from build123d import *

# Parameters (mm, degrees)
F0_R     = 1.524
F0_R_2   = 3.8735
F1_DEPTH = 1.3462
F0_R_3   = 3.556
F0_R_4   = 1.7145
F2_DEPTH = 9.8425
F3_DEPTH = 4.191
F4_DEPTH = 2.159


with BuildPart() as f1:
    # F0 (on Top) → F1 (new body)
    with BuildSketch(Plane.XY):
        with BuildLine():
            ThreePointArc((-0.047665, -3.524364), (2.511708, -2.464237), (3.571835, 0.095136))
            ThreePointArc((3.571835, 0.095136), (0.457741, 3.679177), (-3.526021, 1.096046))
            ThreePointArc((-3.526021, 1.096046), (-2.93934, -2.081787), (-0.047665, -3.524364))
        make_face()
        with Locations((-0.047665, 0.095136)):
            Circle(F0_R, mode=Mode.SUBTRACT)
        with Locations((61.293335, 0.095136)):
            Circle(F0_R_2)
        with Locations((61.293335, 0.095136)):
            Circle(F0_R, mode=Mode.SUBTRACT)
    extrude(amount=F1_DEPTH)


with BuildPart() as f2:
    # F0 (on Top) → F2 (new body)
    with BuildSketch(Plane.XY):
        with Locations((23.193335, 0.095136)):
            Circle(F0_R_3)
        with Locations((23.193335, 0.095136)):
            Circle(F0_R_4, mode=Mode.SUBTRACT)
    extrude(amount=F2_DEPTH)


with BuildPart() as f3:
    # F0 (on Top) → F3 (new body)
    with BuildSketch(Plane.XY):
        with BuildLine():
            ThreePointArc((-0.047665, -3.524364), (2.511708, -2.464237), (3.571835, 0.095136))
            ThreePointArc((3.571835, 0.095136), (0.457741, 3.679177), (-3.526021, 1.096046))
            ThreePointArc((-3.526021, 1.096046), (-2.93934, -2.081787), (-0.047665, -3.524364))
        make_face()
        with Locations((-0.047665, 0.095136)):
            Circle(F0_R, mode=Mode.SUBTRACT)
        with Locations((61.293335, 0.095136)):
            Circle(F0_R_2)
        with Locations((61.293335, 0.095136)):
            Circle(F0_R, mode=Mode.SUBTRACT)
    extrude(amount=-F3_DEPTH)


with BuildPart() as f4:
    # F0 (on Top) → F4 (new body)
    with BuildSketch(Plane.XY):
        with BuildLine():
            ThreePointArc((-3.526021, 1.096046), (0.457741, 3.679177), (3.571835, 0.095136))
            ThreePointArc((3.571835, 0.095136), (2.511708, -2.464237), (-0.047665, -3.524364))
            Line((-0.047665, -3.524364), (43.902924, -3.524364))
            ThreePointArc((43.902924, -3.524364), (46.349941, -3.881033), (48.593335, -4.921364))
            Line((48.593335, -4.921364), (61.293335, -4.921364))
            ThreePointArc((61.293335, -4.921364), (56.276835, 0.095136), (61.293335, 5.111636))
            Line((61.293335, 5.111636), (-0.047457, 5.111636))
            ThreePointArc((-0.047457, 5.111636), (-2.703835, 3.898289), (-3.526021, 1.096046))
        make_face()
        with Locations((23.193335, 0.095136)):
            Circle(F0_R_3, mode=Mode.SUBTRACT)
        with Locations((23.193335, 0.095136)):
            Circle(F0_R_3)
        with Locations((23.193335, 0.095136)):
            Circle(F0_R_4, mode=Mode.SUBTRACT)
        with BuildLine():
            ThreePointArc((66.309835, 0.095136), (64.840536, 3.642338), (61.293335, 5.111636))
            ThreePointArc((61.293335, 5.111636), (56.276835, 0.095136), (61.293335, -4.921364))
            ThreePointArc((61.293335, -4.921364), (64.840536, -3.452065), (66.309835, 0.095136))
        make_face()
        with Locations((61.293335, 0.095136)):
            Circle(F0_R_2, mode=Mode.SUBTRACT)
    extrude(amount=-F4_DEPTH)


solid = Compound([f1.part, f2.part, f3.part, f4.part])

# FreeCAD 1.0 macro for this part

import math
import FreeCAD as App
import Part
import Sketcher

V = App.Vector
Q = App.Units.Quantity

doc = App.newDocument("Part")
body = doc.addObject("PartDesign::Body", "Body")
body.AllowCompound = True

sketch1 = doc.addObject("Sketcher::SketchObject", "Sketch")
body.addObject(sketch1)
sketch1.AttachmentSupport = (doc.XY_Plane, [""])
sketch1.MapMode = "FlatFace"
sketch1.addGeometry(Part.ArcOfCircle(Part.Circle(V(0, 0.1, 0), V(0, 0, 1), 3.6), math.radians(-90), math.radians(0)), False)
sketch1.addGeometry(Part.ArcOfCircle(Part.Circle(V(0, 0.1, 0), V(0, 0, 1), 3.6), math.radians(0), math.radians(164)), False)
sketch1.addGeometry(Part.ArcOfCircle(Part.Circle(V(0, 0.1, 0), V(0, 0, 1), 3.6), math.radians(164), math.radians(270)), False)
sketch1.addGeometry(Part.Circle(V(0, 0.1, 0), V(0, 0, 1), 1.5), False)
sketch1.addGeometry(Part.Circle(V(61.3, 0.1, 0), V(0, 0, 1), 3.9), False)
sketch1.addGeometry(Part.Circle(V(61.3, 0.1, 0), V(0, 0, 1), 1.5), False)
sketch1.addConstraint(Sketcher.Constraint("Tangent", 0, 2, 1, 1))
sketch1.addConstraint(Sketcher.Constraint("Tangent", 1, 2, 2, 1))
sketch1.addConstraint(Sketcher.Constraint("Tangent", 2, 2, 0, 1))
sketch1.addConstraint(Sketcher.Constraint("Coincident", 3, 3, 0, 3))
sketch1.addConstraint(Sketcher.Constraint("Coincident", 5, 3, 4, 3))
sketch1.addConstraint(Sketcher.Constraint("Equal", 3, 5))
sketch1.addConstraint(Sketcher.Constraint("Horizontal", 3, 3, 4, 3))
sketch1.addConstraint(Sketcher.Constraint("Horizontal", 5, 3, 0, 2))
sketch1.addConstraint(Sketcher.Constraint("Vertical", 3, 3, 2, 2))
sketch1.addConstraint(Sketcher.Constraint("Diameter", 3, Q("0.12 in")))
sketch1.addConstraint(Sketcher.Constraint("Diameter", 4, Q("0.305 in")))
sketch1.addConstraint(Sketcher.Constraint("Radius", 0, Q("0.1425 in")))
sketch1.addConstraint(Sketcher.Constraint("DistanceX", 2, 3, 4, 3, Q("2.415 in")))
sketch1.addConstraint(Sketcher.Constraint("DistanceX", 1, 2, -1, 1, Q("3.526021 mm")))
sketch1.addConstraint(Sketcher.Constraint("DistanceY", 1, 3, 1, 2, Q("1.000909 mm")))
sketch1.addConstraint(Sketcher.Constraint("DistanceY", -1, 1, 0, 3, Q("0.095136 mm")))
pad1 = doc.addObject("PartDesign::Pad", "Pad")
body.addObject(pad1)
pad1.Profile = sketch1
pad1.Length = Q("0.053 in")
body2 = doc.addObject("PartDesign::Body", "Body001")

sketch2 = doc.addObject("Sketcher::SketchObject", "Sketch001")
body2.addObject(sketch2)
sketch2.AttachmentSupport = (doc.getObject("XY_Plane001"), [""])
sketch2.MapMode = "FlatFace"
sketch2.addGeometry(Part.Circle(V(23.2, 0.1, 0), V(0, 0, 1), 3.6), False)
sketch2.addGeometry(Part.Circle(V(23.2, 0.1, 0), V(0, 0, 1), 1.7), False)
sketch2.addConstraint(Sketcher.Constraint("Coincident", 1, 3, 0, 3))
sketch2.addConstraint(Sketcher.Constraint("Diameter", 0, Q("0.28 in")))
sketch2.addConstraint(Sketcher.Constraint("Diameter", 1, Q("0.135 in")))
sketch2.addConstraint(Sketcher.Constraint("DistanceX", -1, 1, 0, 3, Q("23.193335 mm")))
sketch2.addConstraint(Sketcher.Constraint("DistanceY", -1, 1, 0, 3, Q("0.095136 mm")))
pad2 = doc.addObject("PartDesign::Pad", "Pad001")
body2.addObject(pad2)
pad2.Profile = sketch2
pad2.Length = Q("0.3875 in")
body3 = doc.addObject("PartDesign::Body", "Body002")
body3.AllowCompound = True

sketch3 = doc.addObject("Sketcher::SketchObject", "Sketch002")
body3.addObject(sketch3)
sketch3.AttachmentSupport = (doc.getObject("XY_Plane002"), [""])
sketch3.MapMode = "FlatFace"
sketch3.addGeometry(Part.ArcOfCircle(Part.Circle(V(0, 0.1, 0), V(0, 0, 1), 3.6), math.radians(-90), math.radians(0)), False)
sketch3.addGeometry(Part.ArcOfCircle(Part.Circle(V(0, 0.1, 0), V(0, 0, 1), 3.6), math.radians(0), math.radians(164)), False)
sketch3.addGeometry(Part.ArcOfCircle(Part.Circle(V(0, 0.1, 0), V(0, 0, 1), 3.6), math.radians(164), math.radians(270)), False)
sketch3.addGeometry(Part.Circle(V(0, 0.1, 0), V(0, 0, 1), 1.5), False)
sketch3.addGeometry(Part.Circle(V(61.3, 0.1, 0), V(0, 0, 1), 3.9), False)
sketch3.addGeometry(Part.Circle(V(61.3, 0.1, 0), V(0, 0, 1), 1.5), False)
sketch3.addConstraint(Sketcher.Constraint("Tangent", 0, 2, 1, 1))
sketch3.addConstraint(Sketcher.Constraint("Tangent", 1, 2, 2, 1))
sketch3.addConstraint(Sketcher.Constraint("Tangent", 2, 2, 0, 1))
sketch3.addConstraint(Sketcher.Constraint("Coincident", 3, 3, 0, 3))
sketch3.addConstraint(Sketcher.Constraint("Coincident", 5, 3, 4, 3))
sketch3.addConstraint(Sketcher.Constraint("Equal", 3, 5))
sketch3.addConstraint(Sketcher.Constraint("Horizontal", 3, 3, 4, 3))
sketch3.addConstraint(Sketcher.Constraint("Horizontal", 5, 3, 0, 2))
sketch3.addConstraint(Sketcher.Constraint("Vertical", 3, 3, 2, 2))
sketch3.addConstraint(Sketcher.Constraint("Diameter", 3, Q("0.12 in")))
sketch3.addConstraint(Sketcher.Constraint("Diameter", 4, Q("0.305 in")))
sketch3.addConstraint(Sketcher.Constraint("Radius", 0, Q("0.1425 in")))
sketch3.addConstraint(Sketcher.Constraint("DistanceX", 2, 3, 4, 3, Q("2.415 in")))
sketch3.addConstraint(Sketcher.Constraint("DistanceX", 1, 2, -1, 1, Q("3.526021 mm")))
sketch3.addConstraint(Sketcher.Constraint("DistanceY", 1, 3, 1, 2, Q("1.000909 mm")))
sketch3.addConstraint(Sketcher.Constraint("DistanceY", -1, 1, 0, 3, Q("0.095136 mm")))
pad3 = doc.addObject("PartDesign::Pad", "Pad002")
body3.addObject(pad3)
pad3.Profile = sketch3
pad3.Length = Q("0.165 in")
pad3.Reversed = True
body4 = doc.addObject("PartDesign::Body", "Body003")

sketch4 = doc.addObject("Sketcher::SketchObject", "Sketch003")
body4.addObject(sketch4)
sketch4.AttachmentSupport = (doc.getObject("XY_Plane003"), [""])
sketch4.MapMode = "FlatFace"
sketch4.addGeometry(Part.ArcOfCircle(Part.Circle(V(0, 0.1, 0), V(0, 0, 1), 3.6), math.radians(0), math.radians(164)), False)
sketch4.addGeometry(Part.ArcOfCircle(Part.Circle(V(0, 0.1, 0), V(0, 0, 1), 3.6), math.radians(-90), math.radians(0)), False)
sketch4.addGeometry(Part.LineSegment(V(0, -3.5, 0), V(43.9, -3.5, 0)), False)
sketch4.addGeometry(Part.ArcOfCircle(Part.Circle(V(43.9, -12.1, 0), V(0, 0, 1), 8.6), math.radians(57), math.radians(90)), False)
sketch4.addGeometry(Part.LineSegment(V(48.6, -4.9, 0), V(61.3, -4.9, 0)), False)
sketch4.addGeometry(Part.ArcOfCircle(Part.Circle(V(61.3, 0.1, 0), V(0, 0, 1), 5), math.radians(-90), math.radians(0)), False)
sketch4.addGeometry(Part.ArcOfCircle(Part.Circle(V(61.3, 0.1, 0), V(0, 0, 1), 5), math.radians(0), math.radians(90)), False)
sketch4.addGeometry(Part.LineSegment(V(61.3, 5.1, 0), V(0, 5.1, 0)), False)
sketch4.addGeometry(Part.ArcOfCircle(Part.Circle(V(0, 1.6, 0), V(0, 0, 1), 3.5), math.radians(90), math.radians(188)), False)
sketch4.addGeometry(Part.Circle(V(23.2, 0.1, 0), V(0, 0, 1), 1.7), False)
sketch4.addGeometry(Part.Circle(V(61.3, 0.1, 0), V(0, 0, 1), 3.9), False)
sketch4.addConstraint(Sketcher.Constraint("Tangent", 0, 1, 1, 2))
sketch4.addConstraint(Sketcher.Constraint("Tangent", 1, 1, 2, 1))
sketch4.addConstraint(Sketcher.Constraint("Tangent", 2, 2, 3, 2))
sketch4.addConstraint(Sketcher.Constraint("Coincident", 3, 1, 4, 1))
sketch4.addConstraint(Sketcher.Constraint("Tangent", 4, 2, 5, 1))
sketch4.addConstraint(Sketcher.Constraint("Tangent", 5, 2, 6, 1))
sketch4.addConstraint(Sketcher.Constraint("Tangent", 6, 2, 7, 1))
sketch4.addConstraint(Sketcher.Constraint("Tangent", 7, 2, 8, 1))
sketch4.addConstraint(Sketcher.Constraint("Coincident", 8, 2, 0, 2))
sketch4.addConstraint(Sketcher.Constraint("Horizontal", 2))
sketch4.addConstraint(Sketcher.Constraint("Horizontal", 4))
sketch4.addConstraint(Sketcher.Constraint("Horizontal", 7))
sketch4.addConstraint(Sketcher.Constraint("Coincident", 10, 3, 5, 3))
sketch4.addConstraint(Sketcher.Constraint("Equal", 0, 1))
sketch4.addConstraint(Sketcher.Constraint("Equal", 5, 6))
sketch4.addConstraint(Sketcher.Constraint("Horizontal", 1, 3, 5, 3))
sketch4.addConstraint(Sketcher.Constraint("Horizontal", 6, 3, 9, 3))
sketch4.addConstraint(Sketcher.Constraint("Horizontal", 10, 3, 0, 1))
sketch4.addConstraint(Sketcher.Constraint("Horizontal", 0, 1, 5, 2))
sketch4.addConstraint(Sketcher.Constraint("Diameter", 9, Q("0.135 in")))
sketch4.addConstraint(Sketcher.Constraint("Diameter", 10, Q("0.305 in")))
sketch4.addConstraint(Sketcher.Constraint("DistanceX", 4, 1, 4, 2, Q("0.5 in")))
sketch4.addConstraint(Sketcher.Constraint("Radius", 0, Q("0.1425 in")))
sketch4.addConstraint(Sketcher.Constraint("Radius", 5, Q("0.1975 in")))
sketch4.addConstraint(Sketcher.Constraint("DistanceX", 9, 3, 5, 3, Q("1.5 in")))
sketch4.addConstraint(Sketcher.Constraint("Radius", 3, Q("8.572479 mm")))
sketch4.addConstraint(Sketcher.Constraint("DistanceX", 0, 3, 5, 3, Q("2.415 in")))
sketch4.addConstraint(Sketcher.Constraint("Radius", 8, Q("3.514473 mm")))
sketch4.addConstraint(Sketcher.Constraint("DistanceX", 7, 2, 7, 1, Q("61.340792 mm")))
sketch4.addConstraint(Sketcher.Constraint("DistanceX", -1, 1, 3, 3, Q("43.90293 mm")))
sketch4.addConstraint(Sketcher.Constraint("DistanceY", -1, 1, 0, 3, Q("0.095137 mm")))
pad4 = doc.addObject("PartDesign::Pad", "Pad003")
body4.addObject(pad4)
pad4.Profile = sketch4
pad4.Length = Q("0.085 in")
pad4.Reversed = True

doc.recompute()
